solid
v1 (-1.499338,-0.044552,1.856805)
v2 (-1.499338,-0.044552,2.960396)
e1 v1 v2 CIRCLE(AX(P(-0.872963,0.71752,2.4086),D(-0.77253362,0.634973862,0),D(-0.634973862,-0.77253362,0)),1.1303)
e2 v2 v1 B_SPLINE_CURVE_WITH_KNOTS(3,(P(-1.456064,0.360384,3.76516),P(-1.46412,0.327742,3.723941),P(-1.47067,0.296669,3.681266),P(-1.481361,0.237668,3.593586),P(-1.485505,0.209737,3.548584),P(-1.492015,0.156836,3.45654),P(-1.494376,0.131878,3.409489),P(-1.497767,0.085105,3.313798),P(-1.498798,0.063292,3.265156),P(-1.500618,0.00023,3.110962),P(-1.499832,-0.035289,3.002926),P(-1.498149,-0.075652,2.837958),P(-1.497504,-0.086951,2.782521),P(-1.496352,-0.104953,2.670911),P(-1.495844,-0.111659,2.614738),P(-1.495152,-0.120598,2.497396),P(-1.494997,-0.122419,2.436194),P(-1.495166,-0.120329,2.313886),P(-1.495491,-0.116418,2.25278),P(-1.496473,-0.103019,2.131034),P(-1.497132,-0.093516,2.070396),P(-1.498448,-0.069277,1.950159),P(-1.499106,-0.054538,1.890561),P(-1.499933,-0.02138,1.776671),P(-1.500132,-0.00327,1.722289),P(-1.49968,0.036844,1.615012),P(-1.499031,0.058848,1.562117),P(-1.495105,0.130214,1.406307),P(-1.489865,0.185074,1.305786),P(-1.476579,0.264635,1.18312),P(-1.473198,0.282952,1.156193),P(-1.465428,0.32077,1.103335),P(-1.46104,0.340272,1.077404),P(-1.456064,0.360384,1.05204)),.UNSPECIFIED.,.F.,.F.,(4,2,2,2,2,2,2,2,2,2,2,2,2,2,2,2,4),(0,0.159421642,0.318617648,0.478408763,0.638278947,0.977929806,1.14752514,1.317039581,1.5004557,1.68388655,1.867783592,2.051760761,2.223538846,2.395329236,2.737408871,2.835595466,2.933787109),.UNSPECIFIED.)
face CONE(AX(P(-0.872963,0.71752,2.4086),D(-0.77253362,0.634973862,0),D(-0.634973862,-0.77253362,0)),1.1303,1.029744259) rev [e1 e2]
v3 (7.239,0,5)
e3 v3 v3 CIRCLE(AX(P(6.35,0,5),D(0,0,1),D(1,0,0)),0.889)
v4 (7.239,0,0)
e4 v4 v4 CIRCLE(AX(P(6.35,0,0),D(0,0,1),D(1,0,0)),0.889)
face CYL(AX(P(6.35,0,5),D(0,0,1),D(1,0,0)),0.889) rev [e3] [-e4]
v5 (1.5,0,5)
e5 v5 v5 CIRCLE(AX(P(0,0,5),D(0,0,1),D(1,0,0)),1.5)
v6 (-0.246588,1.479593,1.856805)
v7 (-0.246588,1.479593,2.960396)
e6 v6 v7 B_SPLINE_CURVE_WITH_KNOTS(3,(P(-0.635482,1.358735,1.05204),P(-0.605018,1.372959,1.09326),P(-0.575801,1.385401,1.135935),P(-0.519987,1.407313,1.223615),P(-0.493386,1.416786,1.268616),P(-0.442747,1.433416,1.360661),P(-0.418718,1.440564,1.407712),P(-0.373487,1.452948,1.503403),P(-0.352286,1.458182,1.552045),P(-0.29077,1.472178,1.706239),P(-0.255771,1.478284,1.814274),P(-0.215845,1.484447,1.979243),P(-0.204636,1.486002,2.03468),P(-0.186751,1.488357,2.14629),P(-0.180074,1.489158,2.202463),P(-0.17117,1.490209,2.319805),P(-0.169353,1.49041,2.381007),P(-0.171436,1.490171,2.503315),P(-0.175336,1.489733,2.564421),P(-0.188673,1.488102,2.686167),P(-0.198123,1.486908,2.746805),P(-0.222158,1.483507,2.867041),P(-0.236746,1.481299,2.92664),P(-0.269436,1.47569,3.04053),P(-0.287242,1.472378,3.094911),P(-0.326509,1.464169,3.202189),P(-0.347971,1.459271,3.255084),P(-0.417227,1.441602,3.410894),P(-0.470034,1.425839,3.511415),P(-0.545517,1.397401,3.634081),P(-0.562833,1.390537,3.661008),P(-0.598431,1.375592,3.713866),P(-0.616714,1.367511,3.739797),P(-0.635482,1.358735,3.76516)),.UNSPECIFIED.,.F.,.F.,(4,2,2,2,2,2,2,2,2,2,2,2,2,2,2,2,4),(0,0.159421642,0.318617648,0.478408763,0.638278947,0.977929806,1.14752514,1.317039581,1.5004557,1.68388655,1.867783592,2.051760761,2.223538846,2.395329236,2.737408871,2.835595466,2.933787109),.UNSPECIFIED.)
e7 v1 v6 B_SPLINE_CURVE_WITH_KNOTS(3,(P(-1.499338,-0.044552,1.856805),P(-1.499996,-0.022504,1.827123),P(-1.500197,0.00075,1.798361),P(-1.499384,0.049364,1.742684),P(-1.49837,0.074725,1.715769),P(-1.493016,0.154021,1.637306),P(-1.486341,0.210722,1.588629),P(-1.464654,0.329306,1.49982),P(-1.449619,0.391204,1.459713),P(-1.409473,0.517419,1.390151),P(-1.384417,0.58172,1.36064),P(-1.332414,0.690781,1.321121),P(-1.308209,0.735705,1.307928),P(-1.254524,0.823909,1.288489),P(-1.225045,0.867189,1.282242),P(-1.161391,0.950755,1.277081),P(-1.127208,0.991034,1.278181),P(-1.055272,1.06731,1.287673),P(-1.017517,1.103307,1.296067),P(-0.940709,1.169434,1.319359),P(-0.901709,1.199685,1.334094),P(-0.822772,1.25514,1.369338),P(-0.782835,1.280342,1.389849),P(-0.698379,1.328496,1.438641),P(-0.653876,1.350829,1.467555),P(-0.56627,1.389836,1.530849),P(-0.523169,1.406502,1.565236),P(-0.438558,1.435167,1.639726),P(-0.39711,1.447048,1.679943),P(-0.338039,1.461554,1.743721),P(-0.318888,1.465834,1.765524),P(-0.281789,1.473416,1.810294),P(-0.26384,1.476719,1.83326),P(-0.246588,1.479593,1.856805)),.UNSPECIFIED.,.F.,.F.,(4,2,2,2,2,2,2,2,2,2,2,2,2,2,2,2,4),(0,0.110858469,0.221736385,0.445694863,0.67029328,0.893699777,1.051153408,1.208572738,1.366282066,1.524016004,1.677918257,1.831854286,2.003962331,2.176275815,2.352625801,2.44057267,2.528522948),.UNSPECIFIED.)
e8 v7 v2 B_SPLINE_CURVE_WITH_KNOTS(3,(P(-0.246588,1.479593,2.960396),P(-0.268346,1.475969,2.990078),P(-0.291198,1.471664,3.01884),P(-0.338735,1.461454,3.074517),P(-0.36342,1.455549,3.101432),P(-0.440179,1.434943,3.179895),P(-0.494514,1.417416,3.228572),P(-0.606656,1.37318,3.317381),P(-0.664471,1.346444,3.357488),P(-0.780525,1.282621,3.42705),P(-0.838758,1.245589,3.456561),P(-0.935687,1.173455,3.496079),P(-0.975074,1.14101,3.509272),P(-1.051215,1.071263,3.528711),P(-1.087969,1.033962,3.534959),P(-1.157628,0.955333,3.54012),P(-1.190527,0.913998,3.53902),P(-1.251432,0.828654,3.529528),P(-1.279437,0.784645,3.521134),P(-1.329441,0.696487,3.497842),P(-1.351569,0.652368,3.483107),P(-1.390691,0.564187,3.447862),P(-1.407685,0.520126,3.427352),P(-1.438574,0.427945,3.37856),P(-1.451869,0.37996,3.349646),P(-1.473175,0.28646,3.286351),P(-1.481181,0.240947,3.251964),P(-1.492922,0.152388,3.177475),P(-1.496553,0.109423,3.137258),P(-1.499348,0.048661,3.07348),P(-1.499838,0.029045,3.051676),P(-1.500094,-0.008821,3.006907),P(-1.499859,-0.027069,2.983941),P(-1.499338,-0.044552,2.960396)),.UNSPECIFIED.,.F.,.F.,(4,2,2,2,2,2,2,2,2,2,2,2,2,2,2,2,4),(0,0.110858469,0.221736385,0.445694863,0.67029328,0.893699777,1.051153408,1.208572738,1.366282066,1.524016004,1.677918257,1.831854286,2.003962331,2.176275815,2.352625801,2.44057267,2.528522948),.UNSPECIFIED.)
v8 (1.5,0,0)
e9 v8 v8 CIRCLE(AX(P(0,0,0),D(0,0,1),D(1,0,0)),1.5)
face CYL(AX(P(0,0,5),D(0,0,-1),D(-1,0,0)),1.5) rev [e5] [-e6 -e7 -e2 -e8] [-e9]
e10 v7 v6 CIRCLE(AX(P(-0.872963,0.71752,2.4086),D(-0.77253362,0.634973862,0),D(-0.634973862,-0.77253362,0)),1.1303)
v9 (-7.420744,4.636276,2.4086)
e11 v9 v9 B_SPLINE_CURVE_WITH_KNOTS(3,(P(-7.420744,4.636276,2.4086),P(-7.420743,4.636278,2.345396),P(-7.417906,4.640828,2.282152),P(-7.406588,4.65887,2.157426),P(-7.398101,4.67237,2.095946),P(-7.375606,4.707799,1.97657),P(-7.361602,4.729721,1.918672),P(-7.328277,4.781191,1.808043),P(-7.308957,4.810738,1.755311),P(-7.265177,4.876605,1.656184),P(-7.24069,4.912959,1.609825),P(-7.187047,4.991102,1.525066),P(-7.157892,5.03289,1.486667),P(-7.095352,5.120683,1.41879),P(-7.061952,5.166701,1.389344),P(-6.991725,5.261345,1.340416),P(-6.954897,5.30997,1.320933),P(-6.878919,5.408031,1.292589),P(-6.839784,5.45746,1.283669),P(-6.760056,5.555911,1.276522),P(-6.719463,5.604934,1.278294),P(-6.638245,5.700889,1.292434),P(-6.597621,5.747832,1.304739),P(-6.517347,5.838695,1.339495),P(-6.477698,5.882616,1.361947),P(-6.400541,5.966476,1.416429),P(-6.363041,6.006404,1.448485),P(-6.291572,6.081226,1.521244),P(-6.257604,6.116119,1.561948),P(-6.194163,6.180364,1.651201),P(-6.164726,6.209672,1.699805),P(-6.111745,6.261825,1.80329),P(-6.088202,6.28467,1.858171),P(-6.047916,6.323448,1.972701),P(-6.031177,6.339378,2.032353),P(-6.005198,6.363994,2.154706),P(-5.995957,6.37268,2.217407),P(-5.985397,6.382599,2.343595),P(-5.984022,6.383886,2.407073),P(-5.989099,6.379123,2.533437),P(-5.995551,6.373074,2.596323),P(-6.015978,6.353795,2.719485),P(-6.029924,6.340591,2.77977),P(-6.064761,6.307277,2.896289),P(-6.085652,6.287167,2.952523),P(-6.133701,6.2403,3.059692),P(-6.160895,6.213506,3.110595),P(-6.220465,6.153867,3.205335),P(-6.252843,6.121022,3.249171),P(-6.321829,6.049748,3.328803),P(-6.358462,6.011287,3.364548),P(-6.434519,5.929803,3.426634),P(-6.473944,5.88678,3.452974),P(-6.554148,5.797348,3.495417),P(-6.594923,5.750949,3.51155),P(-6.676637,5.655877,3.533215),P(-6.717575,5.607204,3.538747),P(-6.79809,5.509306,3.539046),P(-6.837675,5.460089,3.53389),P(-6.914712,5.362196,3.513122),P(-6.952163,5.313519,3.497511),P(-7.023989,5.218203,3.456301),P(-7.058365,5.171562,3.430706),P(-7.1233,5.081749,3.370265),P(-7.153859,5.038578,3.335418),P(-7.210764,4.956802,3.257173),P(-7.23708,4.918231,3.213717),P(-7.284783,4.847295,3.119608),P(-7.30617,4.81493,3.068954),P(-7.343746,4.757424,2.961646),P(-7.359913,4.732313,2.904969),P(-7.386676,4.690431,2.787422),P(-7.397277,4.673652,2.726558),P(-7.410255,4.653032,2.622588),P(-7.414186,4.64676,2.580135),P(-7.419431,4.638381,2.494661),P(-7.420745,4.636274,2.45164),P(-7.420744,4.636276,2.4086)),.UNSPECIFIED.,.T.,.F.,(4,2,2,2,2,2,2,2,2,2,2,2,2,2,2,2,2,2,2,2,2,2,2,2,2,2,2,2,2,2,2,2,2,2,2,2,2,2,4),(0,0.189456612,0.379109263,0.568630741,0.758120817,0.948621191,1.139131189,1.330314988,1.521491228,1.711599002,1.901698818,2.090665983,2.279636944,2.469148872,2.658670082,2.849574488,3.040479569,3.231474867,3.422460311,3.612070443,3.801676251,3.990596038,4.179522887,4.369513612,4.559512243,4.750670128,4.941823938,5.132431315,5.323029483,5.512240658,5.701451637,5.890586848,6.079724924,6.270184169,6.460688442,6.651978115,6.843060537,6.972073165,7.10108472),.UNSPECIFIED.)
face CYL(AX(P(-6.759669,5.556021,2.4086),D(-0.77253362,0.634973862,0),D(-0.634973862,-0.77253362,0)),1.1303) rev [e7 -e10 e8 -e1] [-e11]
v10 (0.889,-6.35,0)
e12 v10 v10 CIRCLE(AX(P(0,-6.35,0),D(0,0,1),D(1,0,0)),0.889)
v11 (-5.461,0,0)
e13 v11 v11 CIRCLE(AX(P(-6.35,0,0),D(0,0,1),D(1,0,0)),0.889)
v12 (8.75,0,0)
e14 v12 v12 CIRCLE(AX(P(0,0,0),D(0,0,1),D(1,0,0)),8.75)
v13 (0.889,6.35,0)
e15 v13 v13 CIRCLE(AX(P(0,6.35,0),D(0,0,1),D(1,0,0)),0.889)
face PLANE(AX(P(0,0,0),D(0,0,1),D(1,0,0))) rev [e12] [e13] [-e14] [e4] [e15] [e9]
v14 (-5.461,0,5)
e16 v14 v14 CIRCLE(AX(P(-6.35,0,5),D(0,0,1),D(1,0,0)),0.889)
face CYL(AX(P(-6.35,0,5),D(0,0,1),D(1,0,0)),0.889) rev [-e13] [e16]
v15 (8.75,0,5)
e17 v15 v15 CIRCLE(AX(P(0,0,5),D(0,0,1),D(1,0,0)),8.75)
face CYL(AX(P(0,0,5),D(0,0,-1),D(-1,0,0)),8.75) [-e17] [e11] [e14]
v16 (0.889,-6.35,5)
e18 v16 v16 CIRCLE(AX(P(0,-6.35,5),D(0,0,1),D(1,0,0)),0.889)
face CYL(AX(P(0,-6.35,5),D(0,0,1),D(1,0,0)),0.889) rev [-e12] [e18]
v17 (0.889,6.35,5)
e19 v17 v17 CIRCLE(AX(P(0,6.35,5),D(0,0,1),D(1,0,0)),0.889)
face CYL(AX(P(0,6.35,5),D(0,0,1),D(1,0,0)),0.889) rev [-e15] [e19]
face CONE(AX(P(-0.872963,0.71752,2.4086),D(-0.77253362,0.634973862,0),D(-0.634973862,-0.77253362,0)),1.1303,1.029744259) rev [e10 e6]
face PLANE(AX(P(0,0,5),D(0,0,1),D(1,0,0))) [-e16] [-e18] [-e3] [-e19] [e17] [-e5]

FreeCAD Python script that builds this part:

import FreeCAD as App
import Part
import Sketcher
from FreeCAD import Vector
Q = App.Units.Quantity

doc = App.newDocument("Part")
body = doc.addObject("PartDesign::Body", "Body")

# Sketch on XY plane
sketch1 = doc.addObject("Sketcher::SketchObject", "Sketch")
body.addObject(sketch1)
sketch1.AttachmentSupport = (doc.XY_Plane, [""])
sketch1.MapMode = "FlatFace"
sketch1.addGeometry(Part.Circle(Vector(0, 0, 0), Vector(0, 0, 1), 8.8), False)
sketch1.addGeometry(Part.Circle(Vector(0, 0, 0), Vector(0, 0, 1), 1.5), False)
sketch1.addConstraint(Sketcher.Constraint("Coincident", 0, 3, -1, 1))
sketch1.addConstraint(Sketcher.Constraint("Coincident", 1, 3, -1, 1))
sketch1.addConstraint(Sketcher.Constraint("Diameter", 1, Q("3 mm")))
sketch1.addConstraint(Sketcher.Constraint("Diameter", 0, Q("17.5 mm")))
pad1 = doc.addObject("PartDesign::Pad", "Pad")
body.addObject(pad1)
pad1.Profile = sketch1
pad1.Length = 5

# Sketch on XY plane
sketch2 = doc.addObject("Sketcher::SketchObject", "Sketch001")
body.addObject(sketch2)
sketch2.AttachmentSupport = (doc.XY_Plane, [""])
sketch2.MapMode = "FlatFace"
sketch2.AttachmentOffset = App.Placement(Vector(0, 0, 5), App.Rotation())
sketch2.addGeometry(Part.Circle(Vector(-6.3, 0, 0), Vector(0, 0, 1), 0.9), False)
sketch2.addGeometry(Part.Circle(Vector(0, 6.3, 0), Vector(0, 0, 1), 0.9), False)
sketch2.addGeometry(Part.Circle(Vector(6.3, 0, 0), Vector(0, 0, 1), 0.9), False)
sketch2.addGeometry(Part.Circle(Vector(0, -6.3, 0), Vector(0, 0, 1), 0.9), False)
sketch2.addConstraint(Sketcher.Constraint("Equal", 0, 1))
sketch2.addConstraint(Sketcher.Constraint("Equal", 1, 2))
sketch2.addConstraint(Sketcher.Constraint("Equal", 2, 3))
sketch2.addConstraint(Sketcher.Constraint("Symmetric", 0, 3, 2, 3, -1, 1))
sketch2.addConstraint(Sketcher.Constraint("Symmetric", 1, 3, 3, 3, -1, 1))
sketch2.addConstraint(Sketcher.Constraint("PointOnObject", 0, 3, -1))
sketch2.addConstraint(Sketcher.Constraint("PointOnObject", 1, 3, -2))
sketch2.addConstraint(Sketcher.Constraint("Diameter", 0, Q("1.778 mm")))
sketch2.addConstraint(Sketcher.Constraint("DistanceX", 0, 3, 2, 3, Q("12.7 mm")))
sketch2.addConstraint(Sketcher.Constraint("DistanceY", 3, 3, 1, 3, Q("12.7 mm")))
doc.recompute()
hole = doc.addObject("PartDesign::Hole", "Hole")
body.addObject(hole)
hole.Profile = sketch2
hole.ThreadType = "None"
hole.Diameter = 1.778
hole.DepthType = "ThroughAll"

# Sketch on an angled plane
sketch3 = doc.addObject("Sketcher::SketchObject", "Sketch002")
body.addObject(sketch3)
sketch3.Placement = App.Placement(Vector(-6.759669, 5.556021, 0), App.Rotation(Vector(-0.634973862, -0.77253362, 0), Vector(0, 0, 0.999999999), Vector(-0.77253362, 0.634973862, 0), "ZXY"))
sketch3.addGeometry(Part.Circle(Vector(0, 2.4, 0), Vector(0, 0, 1), 1.1), False)
sketch3.addConstraint(Sketcher.Constraint("PointOnObject", 0, 3, -2))
sketch3.addConstraint(Sketcher.Constraint("Diameter", 0, Q("2.2606 mm")))
sketch3.addConstraint(Sketcher.Constraint("DistanceY", -1, 1, 0, 3, Q("2.4086 mm")))
doc.recompute()
hole2 = doc.addObject("PartDesign::Hole", "Hole001")
body.addObject(hole2)
hole2.Profile = sketch3
hole2.ThreadType = "None"
hole2.Diameter = 2.2606
hole2.DepthType = "Dimension"
hole2.Depth = 7.62
hole2.DrillPoint = "Angled"
hole2.DrillPointAngle = 118

doc.recompute()
